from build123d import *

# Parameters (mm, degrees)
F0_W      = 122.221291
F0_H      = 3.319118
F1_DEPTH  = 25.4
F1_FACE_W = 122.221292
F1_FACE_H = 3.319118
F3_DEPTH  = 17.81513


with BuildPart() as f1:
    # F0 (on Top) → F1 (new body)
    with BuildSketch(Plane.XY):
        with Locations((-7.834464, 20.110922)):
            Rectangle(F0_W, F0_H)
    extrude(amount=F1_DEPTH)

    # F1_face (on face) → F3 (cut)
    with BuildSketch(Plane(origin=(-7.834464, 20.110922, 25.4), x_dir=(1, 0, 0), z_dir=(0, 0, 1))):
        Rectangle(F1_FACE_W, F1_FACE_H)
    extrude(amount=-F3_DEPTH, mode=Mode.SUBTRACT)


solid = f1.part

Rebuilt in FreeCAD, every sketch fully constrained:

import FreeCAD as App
import Part
import Sketcher
Q = App.Units.Quantity

doc = App.newDocument("Part")
body = doc.addObject("PartDesign::Body", "Body")

# Sketch on XY plane
sketch1 = body.newObject("Sketcher::SketchObject", "Sketch")
sketch1.AttachmentSupport = (doc.getObject("XY_Plane"), [""])
sketch1.MapMode = "FlatFace"
sketch1.addGeometry(Part.LineSegment(App.Vector(-68.9, 21.8, 0), App.Vector(-68.9, 18.5, 0)), False)
sketch1.addGeometry(Part.LineSegment(App.Vector(-68.9, 18.5, 0), App.Vector(53.3, 18.5, 0)), False)
sketch1.addGeometry(Part.LineSegment(App.Vector(53.3, 18.5, 0), App.Vector(53.3, 21.8, 0)), False)
sketch1.addGeometry(Part.LineSegment(App.Vector(53.3, 21.8, 0), App.Vector(-68.9, 21.8, 0)), False)
sketch1.addConstraint(Sketcher.Constraint("Coincident", 0, 2, 1, 1))
sketch1.addConstraint(Sketcher.Constraint("Coincident", 1, 2, 2, 1))
sketch1.addConstraint(Sketcher.Constraint("Coincident", 2, 2, 3, 1))
sketch1.addConstraint(Sketcher.Constraint("Coincident", 3, 2, 0, 1))
sketch1.addConstraint(Sketcher.Constraint("Vertical", 0))
sketch1.addConstraint(Sketcher.Constraint("Horizontal", 1))
sketch1.addConstraint(Sketcher.Constraint("Vertical", 2))
sketch1.addConstraint(Sketcher.Constraint("Horizontal", 3))
sketch1.addConstraint(Sketcher.Constraint("DistanceX", 1, 1, 1, 2, 122.221291))
sketch1.addConstraint(Sketcher.Constraint("DistanceY", 0, 2, 0, 1, 3.319118))
sketch1.addConstraint(Sketcher.Constraint("DistanceX", 0, 2, -1, 1, 68.94511))
sketch1.addConstraint(Sketcher.Constraint("DistanceY", -1, 1, 2, 2, 21.770481))
pad1 = body.newObject("PartDesign::Pad", "Pad")
pad1.Profile = sketch1
pad1.Length = Q("1 in")

# Sketch on XY plane
sketch2 = body.newObject("Sketcher::SketchObject", "Sketch001")
sketch2.AttachmentSupport = (doc.getObject("XY_Plane"), [""])
sketch2.MapMode = "FlatFace"
sketch2.AttachmentOffset = App.Placement(App.Vector(0, 0, 1 * 25.4), App.Rotation())
sketch2.addGeometry(Part.LineSegment(App.Vector(-68.9, 21.8, 0), App.Vector(-68.9, 18.5, 0)), False)
sketch2.addGeometry(Part.LineSegment(App.Vector(-68.9, 18.5, 0), App.Vector(53.3, 18.5, 0)), False)
sketch2.addGeometry(Part.LineSegment(App.Vector(53.3, 18.5, 0), App.Vector(53.3, 21.8, 0)), False)
sketch2.addGeometry(Part.LineSegment(App.Vector(53.3, 21.8, 0), App.Vector(-68.9, 21.8, 0)), False)
sketch2.addConstraint(Sketcher.Constraint("Coincident", 0, 2, 1, 1))
sketch2.addConstraint(Sketcher.Constraint("Coincident", 1, 2, 2, 1))
sketch2.addConstraint(Sketcher.Constraint("Coincident", 2, 2, 3, 1))
sketch2.addConstraint(Sketcher.Constraint("Coincident", 3, 2, 0, 1))
sketch2.addConstraint(Sketcher.Constraint("Vertical", 0))
sketch2.addConstraint(Sketcher.Constraint("Horizontal", 1))
sketch2.addConstraint(Sketcher.Constraint("Vertical", 2))
sketch2.addConstraint(Sketcher.Constraint("Horizontal", 3))
sketch2.addConstraint(Sketcher.Constraint("DistanceX", 1, 1, 1, 2, 122.221292))
sketch2.addConstraint(Sketcher.Constraint("DistanceY", 0, 2, 0, 1, 3.319118))
sketch2.addConstraint(Sketcher.Constraint("DistanceX", 0, 2, -1, 1, 68.94511))
sketch2.addConstraint(Sketcher.Constraint("DistanceY", -1, 1, 2, 2, 21.770481))
pocket1 = body.newObject("PartDesign::Pocket", "Pocket")
pocket1.Profile = sketch2
pocket1.Length = 17.81513

doc.recompute()
